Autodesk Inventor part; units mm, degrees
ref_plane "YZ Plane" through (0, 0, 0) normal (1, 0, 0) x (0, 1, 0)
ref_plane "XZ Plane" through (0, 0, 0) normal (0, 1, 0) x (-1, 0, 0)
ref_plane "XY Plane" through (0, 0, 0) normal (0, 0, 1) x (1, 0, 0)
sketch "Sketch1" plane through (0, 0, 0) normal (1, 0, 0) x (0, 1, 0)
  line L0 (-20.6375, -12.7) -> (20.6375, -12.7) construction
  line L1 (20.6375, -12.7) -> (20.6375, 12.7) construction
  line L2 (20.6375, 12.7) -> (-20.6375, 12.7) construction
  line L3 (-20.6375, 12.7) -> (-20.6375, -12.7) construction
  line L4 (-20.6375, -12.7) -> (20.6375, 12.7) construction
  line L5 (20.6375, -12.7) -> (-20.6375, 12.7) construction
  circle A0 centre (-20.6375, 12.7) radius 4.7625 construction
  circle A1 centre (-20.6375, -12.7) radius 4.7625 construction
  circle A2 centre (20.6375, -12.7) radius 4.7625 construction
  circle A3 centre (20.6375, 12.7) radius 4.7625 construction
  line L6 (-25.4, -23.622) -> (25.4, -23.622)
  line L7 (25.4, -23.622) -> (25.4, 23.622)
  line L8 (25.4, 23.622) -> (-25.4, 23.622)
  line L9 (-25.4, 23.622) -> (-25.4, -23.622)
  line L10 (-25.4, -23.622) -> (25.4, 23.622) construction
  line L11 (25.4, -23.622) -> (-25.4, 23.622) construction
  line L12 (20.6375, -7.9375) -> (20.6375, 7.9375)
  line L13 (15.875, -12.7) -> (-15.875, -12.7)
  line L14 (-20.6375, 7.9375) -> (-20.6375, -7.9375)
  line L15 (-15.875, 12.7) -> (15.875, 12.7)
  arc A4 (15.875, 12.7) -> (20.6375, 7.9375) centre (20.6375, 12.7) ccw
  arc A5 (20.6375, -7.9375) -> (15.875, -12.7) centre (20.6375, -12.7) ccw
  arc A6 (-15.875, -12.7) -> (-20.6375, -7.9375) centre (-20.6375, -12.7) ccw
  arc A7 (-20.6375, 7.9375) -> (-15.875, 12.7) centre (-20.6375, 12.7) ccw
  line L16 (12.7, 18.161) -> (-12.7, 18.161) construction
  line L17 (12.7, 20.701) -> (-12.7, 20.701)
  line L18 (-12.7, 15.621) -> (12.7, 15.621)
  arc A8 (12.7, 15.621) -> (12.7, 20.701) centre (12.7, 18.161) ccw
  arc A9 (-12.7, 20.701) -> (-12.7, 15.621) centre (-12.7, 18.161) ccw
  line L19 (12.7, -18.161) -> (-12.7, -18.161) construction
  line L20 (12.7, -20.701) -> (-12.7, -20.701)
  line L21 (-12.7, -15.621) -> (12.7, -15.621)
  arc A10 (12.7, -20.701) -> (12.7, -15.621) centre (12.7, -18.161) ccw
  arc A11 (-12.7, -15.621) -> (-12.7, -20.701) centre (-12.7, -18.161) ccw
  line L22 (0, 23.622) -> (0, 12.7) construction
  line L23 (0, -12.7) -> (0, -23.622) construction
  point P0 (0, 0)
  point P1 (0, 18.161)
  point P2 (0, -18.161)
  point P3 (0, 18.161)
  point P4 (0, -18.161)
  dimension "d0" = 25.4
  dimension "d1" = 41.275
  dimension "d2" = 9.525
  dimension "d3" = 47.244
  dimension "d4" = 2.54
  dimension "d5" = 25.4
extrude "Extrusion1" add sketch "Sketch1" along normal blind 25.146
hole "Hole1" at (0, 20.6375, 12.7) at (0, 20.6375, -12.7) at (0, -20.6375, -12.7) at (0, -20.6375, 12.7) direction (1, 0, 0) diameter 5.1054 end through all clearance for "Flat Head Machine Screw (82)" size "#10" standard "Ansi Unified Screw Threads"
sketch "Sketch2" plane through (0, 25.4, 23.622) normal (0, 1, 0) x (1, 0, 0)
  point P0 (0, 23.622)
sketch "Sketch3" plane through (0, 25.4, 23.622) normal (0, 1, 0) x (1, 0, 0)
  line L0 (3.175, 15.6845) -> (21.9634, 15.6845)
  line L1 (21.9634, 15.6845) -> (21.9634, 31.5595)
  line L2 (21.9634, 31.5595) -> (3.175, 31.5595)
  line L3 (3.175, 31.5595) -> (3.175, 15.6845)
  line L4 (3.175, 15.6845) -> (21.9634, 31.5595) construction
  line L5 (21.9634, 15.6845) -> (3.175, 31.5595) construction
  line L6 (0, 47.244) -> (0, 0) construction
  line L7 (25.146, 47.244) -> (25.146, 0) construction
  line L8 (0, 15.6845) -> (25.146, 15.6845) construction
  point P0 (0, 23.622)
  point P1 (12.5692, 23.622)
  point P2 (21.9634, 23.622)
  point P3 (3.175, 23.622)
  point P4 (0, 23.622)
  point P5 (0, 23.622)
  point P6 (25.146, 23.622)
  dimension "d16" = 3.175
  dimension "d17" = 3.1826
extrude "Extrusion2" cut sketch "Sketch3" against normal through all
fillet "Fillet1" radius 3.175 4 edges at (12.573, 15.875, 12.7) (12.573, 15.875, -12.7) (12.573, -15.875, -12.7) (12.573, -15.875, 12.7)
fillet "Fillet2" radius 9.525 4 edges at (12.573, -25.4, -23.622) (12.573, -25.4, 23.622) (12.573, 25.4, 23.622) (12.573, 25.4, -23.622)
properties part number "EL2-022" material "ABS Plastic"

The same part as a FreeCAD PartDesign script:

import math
import FreeCAD as App
import Part
import Sketcher
from FreeCAD import Vector
Q = App.Units.Quantity


def edges_at(feature, points):
    """Names of the edges that pass closest to the given points."""
    edges = feature.Shape.Edges
    near = lambda p: min(range(len(edges)), key=lambda i: edges[i].distToShape(Part.Vertex(*p))[0])
    return sorted({f"Edge{near(p) + 1}" for p in points})

doc = App.newDocument("Part")
params = doc.addObject("Spreadsheet::Sheet", "Params")
for row, (alias, value) in enumerate([
    ("sketch1_radius", "0.1 in"),
    ("sketch1_width", "1 in"),
    ("sketch1_radius2", "0.1875 in"),
    ("sketch1_height", "1.86 in"),
    ("pad1_length", "0.99 in"),
    ("sketch2_diameter", "0.201 in"),
    ("hole_diameter", "0.201 in"),
    ("sketch3_height", "0.625 in"),
    ("fillet_radius", "0.125 in"),
    ("fillet2_radius", "0.375 in"),
], start=1):
    params.set(f"A{row}", alias)
    params.set(f"B{row}", "=" + value)
    params.setAlias(f"B{row}", alias)

body = doc.addObject("PartDesign::Body", "Body")

sketch1 = body.newObject("Sketcher::SketchObject", "Sketch")
sketch1.AttachmentSupport = (doc.getObject("YZ_Plane"), [""])
sketch1.MapMode = "FlatFace"
sketch1.addGeometry([
    Part.LineSegment(Vector(-25.4, 23.6, 0), Vector(-25.4, -23.6, 0)),
    Part.LineSegment(Vector(-25.4, -23.6, 0), Vector(25.4, -23.6, 0)),
    Part.LineSegment(Vector(25.4, -23.6, 0), Vector(25.4, 23.6, 0)),
    Part.LineSegment(Vector(25.4, 23.6, 0), Vector(-25.4, 23.6, 0)),
    Part.ArcOfCircle(Part.Circle(Vector(12.7, -18.2, 0), Vector(0, 0, 1), 2.5), math.radians(-90), math.radians(90)),
    Part.LineSegment(Vector(12.7, -20.7, 0), Vector(-12.7, -20.7, 0)),
    Part.ArcOfCircle(Part.Circle(Vector(-12.7, -18.2, 0), Vector(0, 0, 1), 2.5), math.radians(90), math.radians(270)),
    Part.LineSegment(Vector(-12.7, -15.6, 0), Vector(12.7, -15.6, 0)),
    Part.LineSegment(Vector(20.6, 7.9, 0), Vector(20.6, -7.9, 0)),
    Part.ArcOfCircle(Part.Circle(Vector(20.6, -12.7, 0), Vector(0, 0, 1), 4.8), math.radians(90), math.radians(180)),
    Part.LineSegment(Vector(15.9, -12.7, 0), Vector(-15.9, -12.7, 0)),
    Part.ArcOfCircle(Part.Circle(Vector(-20.6, -12.7, 0), Vector(0, 0, 1), 4.8), math.radians(0), math.radians(90)),
    Part.LineSegment(Vector(-20.6, -7.9, 0), Vector(-20.6, 7.9, 0)),
    Part.ArcOfCircle(Part.Circle(Vector(-20.6, 12.7, 0), Vector(0, 0, 1), 4.8), math.radians(-90), math.radians(0)),
    Part.LineSegment(Vector(-15.9, 12.7, 0), Vector(15.9, 12.7, 0)),
    Part.ArcOfCircle(Part.Circle(Vector(20.6, 12.7, 0), Vector(0, 0, 1), 4.8), math.radians(180), math.radians(270)),
    Part.LineSegment(Vector(-12.7, 20.7, 0), Vector(12.7, 20.7, 0)),
    Part.ArcOfCircle(Part.Circle(Vector(12.7, 18.2, 0), Vector(0, 0, 1), 2.5), math.radians(-90), math.radians(90)),
    Part.LineSegment(Vector(12.7, 15.6, 0), Vector(-12.7, 15.6, 0)),
    Part.ArcOfCircle(Part.Circle(Vector(-12.7, 18.2, 0), Vector(0, 0, 1), 2.5), math.radians(90), math.radians(270)),
], False)
sketch1.addConstraint([
    Sketcher.Constraint("Coincident", 0, 2, 1, 1),
    Sketcher.Constraint("Coincident", 1, 2, 2, 1),
    Sketcher.Constraint("Coincident", 2, 2, 3, 1),
    Sketcher.Constraint("Coincident", 3, 2, 0, 1),
    Sketcher.Constraint("Tangent", 4, 1, 5, 1),
    Sketcher.Constraint("Tangent", 5, 2, 6, 2),
    Sketcher.Constraint("Tangent", 6, 1, 7, 1),
    Sketcher.Constraint("Tangent", 7, 2, 4, 2),
    Sketcher.Constraint("Coincident", 8, 2, 9, 1),
    Sketcher.Constraint("Coincident", 9, 2, 10, 1),
    Sketcher.Constraint("Coincident", 10, 2, 11, 1),
    Sketcher.Constraint("Coincident", 11, 2, 12, 1),
    Sketcher.Constraint("Coincident", 12, 2, 13, 1),
    Sketcher.Constraint("Coincident", 13, 2, 14, 1),
    Sketcher.Constraint("Coincident", 14, 2, 15, 1),
    Sketcher.Constraint("Coincident", 15, 2, 8, 1),
    Sketcher.Constraint("Tangent", 16, 2, 17, 2),
    Sketcher.Constraint("Tangent", 17, 1, 18, 1),
    Sketcher.Constraint("Tangent", 18, 2, 19, 2),
    Sketcher.Constraint("Tangent", 19, 1, 16, 1),
    Sketcher.Constraint("Vertical", 0),
    Sketcher.Constraint("Horizontal", 1),
    Sketcher.Constraint("Vertical", 2),
    Sketcher.Constraint("Horizontal", 3),
    Sketcher.Constraint("Horizontal", 5),
    Sketcher.Constraint("Horizontal", 7),
    Sketcher.Constraint("Vertical", 8),
    Sketcher.Constraint("Horizontal", 10),
    Sketcher.Constraint("Vertical", 12),
    Sketcher.Constraint("Horizontal", 14),
    Sketcher.Constraint("Horizontal", 16),
    Sketcher.Constraint("Horizontal", 18),
    Sketcher.Constraint("Equal", 9, 11),
    Sketcher.Constraint("Equal", 11, 13),
    Sketcher.Constraint("Equal", 13, 15),
    Sketcher.Constraint("Equal", 6, 17),
    Sketcher.Constraint("Symmetric", 9, 3, 13, 3, -1, 1),
    Sketcher.Constraint("Symmetric", 11, 3, 15, 3, -1, 1),
    Sketcher.Constraint("Symmetric", 6, 3, 17, 3, -1, 1),
    Sketcher.Constraint("Symmetric", 0, 2, 2, 2, -1, 1),
    Sketcher.Constraint("Symmetric", 9, 3, 11, 3, -2),
    Sketcher.Constraint("Horizontal", 11, 3, 9, 2),
    Sketcher.Constraint("Horizontal", 15, 3, 13, 2),
    Sketcher.Constraint("Vertical", 4, 3, 17, 3),
    Sketcher.Constraint("Vertical", 6, 3, 19, 3),
    Sketcher.Constraint("Vertical", 15, 3, 8, 2),
    Sketcher.Constraint("Vertical", 13, 3, 11, 2),
    Sketcher.Constraint("Radius", 4, Q("0.1 in")),
    Sketcher.Constraint("DistanceX", 5, 2, 5, 1, Q("1 in")),
    Sketcher.Constraint("DistanceX", 0, 2, -1, 1, Q("1 in")),
    Sketcher.Constraint("Radius", 9, Q("0.1875 in")),
    Sketcher.Constraint("DistanceY", 11, 3, 13, 3, Q("1 in")),
    Sketcher.Constraint("DistanceY", 0, 2, 0, 1, Q("1.86 in")),
    Sketcher.Constraint("DistanceX", 11, 3, 9, 3, Q("1.625 in")),
    Sketcher.Constraint("DistanceY", 4, 3, 17, 3, Q("1.43 in")),
])
sketch1.setExpression("Constraints[47]", "Params.sketch1_radius")
sketch1.setExpression("Constraints[48]", "Params.sketch1_width")
sketch1.setExpression("Constraints[50]", "Params.sketch1_radius2")
sketch1.setExpression("Constraints[52]", "Params.sketch1_height")
pad1 = body.newObject("PartDesign::Pad", "Pad")
pad1.Profile = sketch1
pad1.setExpression("Length", "Params.pad1_length")

sketch2 = body.newObject("Sketcher::SketchObject", "Sketch001")
sketch2.AttachmentSupport = (doc.getObject("YZ_Plane"), [""])
sketch2.MapMode = "FlatFace"
sketch2.addGeometry([
    Part.Circle(Vector(20.6, 12.7, 0), Vector(0, 0, 1), 2.6),
    Part.Circle(Vector(20.6, -12.7, 0), Vector(0, 0, 1), 2.6),
    Part.Circle(Vector(-20.6, -12.7, 0), Vector(0, 0, 1), 2.6),
    Part.Circle(Vector(-20.6, 12.7, 0), Vector(0, 0, 1), 2.6),
], False)
sketch2.addConstraint([
    Sketcher.Constraint("Equal", 0, 1),
    Sketcher.Constraint("Equal", 1, 2),
    Sketcher.Constraint("Equal", 2, 3),
    Sketcher.Constraint("Symmetric", 0, 3, 2, 3, -1, 1),
    Sketcher.Constraint("Symmetric", 1, 3, 3, 3, -1, 1),
    Sketcher.Constraint("Symmetric", 1, 3, 2, 3, -2),
    Sketcher.Constraint("Diameter", 0, Q("0.201 in")),
    Sketcher.Constraint("DistanceY", 1, 3, 0, 3, Q("1 in")),
    Sketcher.Constraint("DistanceX", -1, 1, 0, 3, Q("0.8125 in")),
])
sketch2.setExpression("Constraints[6]", "Params.sketch2_diameter")
doc.recompute()
hole = body.newObject("PartDesign::Hole", "Hole")
hole.Profile = sketch2
hole.ThreadType = "None"
hole.setExpression("Diameter", "Params.hole_diameter")
hole.DepthType = "ThroughAll"
hole.Reversed = True

sketch3 = body.newObject("Sketcher::SketchObject", "Sketch002")
sketch3.AttachmentSupport = (doc.getObject("XZ_Plane"), [""])
sketch3.MapMode = "FlatFace"
sketch3.AttachmentOffset = App.Placement(Vector(0, 0, -1 * 25.4), App.Rotation())
sketch3.addGeometry([
    Part.LineSegment(Vector(3, -8, 0), Vector(3, 8, 0)),
    Part.LineSegment(Vector(3, 8, 0), Vector(22, 8, 0)),
    Part.LineSegment(Vector(22, 8, 0), Vector(22, -8, 0)),
    Part.LineSegment(Vector(22, -8, 0), Vector(3, -8, 0)),
], False)
sketch3.addConstraint([
    Sketcher.Constraint("Coincident", 0, 2, 1, 1),
    Sketcher.Constraint("Coincident", 1, 2, 2, 1),
    Sketcher.Constraint("Coincident", 2, 2, 3, 1),
    Sketcher.Constraint("Coincident", 3, 2, 0, 1),
    Sketcher.Constraint("Vertical", 0),
    Sketcher.Constraint("Horizontal", 1),
    Sketcher.Constraint("Vertical", 2),
    Sketcher.Constraint("Horizontal", 3),
    Sketcher.Constraint("DistanceX", -1, 1, 0, 2, Q("0.125 in")),
    Sketcher.Constraint("DistanceY", 0, 1, 0, 2, Q("0.625 in")),
    Sketcher.Constraint("DistanceX", 1, 1, 1, 2, Q("0.7397 in")),
    Sketcher.Constraint("DistanceY", -1, 1, 0, 2, Q("0.3125 in")),
])
sketch3.setExpression("Constraints[9]", "Params.sketch3_height")
pocket1 = body.newObject("PartDesign::Pocket", "Pocket")
pocket1.Profile = sketch3
pocket1.Type = "ThroughAll"
pocket1.Reversed = True
doc.recompute()

fillet = body.newObject("PartDesign::Fillet", "Fillet")
fillet.Base = (pocket1, edges_at(pocket1, [
    (12.573, 15.875, 12.7),
    (12.573, 15.875, -12.7),
    (12.573, -15.875, -12.7),
    (12.573, -15.875, 12.7),
]))
fillet.setExpression("Radius", "Params.fillet_radius")
doc.recompute()

fillet2 = body.newObject("PartDesign::Fillet", "Fillet001")
fillet2.Base = (fillet, edges_at(fillet, [
    (12.573, -25.4, -23.622),
    (12.573, -25.4, 23.622),
    (12.573, 25.4, 23.622),
    (12.573, 25.4, -23.622),
]))
fillet2.setExpression("Radius", "Params.fillet2_radius")

doc.recompute()
